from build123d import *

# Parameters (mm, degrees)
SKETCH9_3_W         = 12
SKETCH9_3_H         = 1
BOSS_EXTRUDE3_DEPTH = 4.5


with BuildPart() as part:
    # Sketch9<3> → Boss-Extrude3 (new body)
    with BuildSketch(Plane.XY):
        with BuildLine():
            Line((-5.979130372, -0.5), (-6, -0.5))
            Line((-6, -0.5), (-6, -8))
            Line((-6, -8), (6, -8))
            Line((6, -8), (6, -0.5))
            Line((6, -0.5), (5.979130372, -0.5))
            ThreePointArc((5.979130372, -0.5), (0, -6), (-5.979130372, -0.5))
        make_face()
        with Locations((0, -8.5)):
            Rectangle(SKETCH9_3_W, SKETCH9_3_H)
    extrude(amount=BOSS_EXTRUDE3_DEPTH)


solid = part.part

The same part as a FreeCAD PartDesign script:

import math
import FreeCAD as App
import Part
import Sketcher
Q = App.Units.Quantity

doc = App.newDocument("Part")
body = doc.addObject("PartDesign::Body", "Body")

# Sketch on XY plane
sketch1 = body.newObject("Sketcher::SketchObject", "Sketch")
sketch1.AttachmentSupport = (doc.getObject("XY_Plane"), [""])
sketch1.MapMode = "FlatFace"
sketch1.addGeometry(Part.LineSegment(App.Vector(-5.979, -0.5, 0), App.Vector(-6, -0.5, 0)), False)
sketch1.addGeometry(Part.LineSegment(App.Vector(-6, -0.5, 0), App.Vector(-6, -9, 0)), False)
sketch1.addGeometry(Part.LineSegment(App.Vector(-6, -9, 0), App.Vector(6, -9, 0)), False)
sketch1.addGeometry(Part.LineSegment(App.Vector(6, -9, 0), App.Vector(6, -0.5, 0)), False)
sketch1.addGeometry(Part.LineSegment(App.Vector(6, -0.5, 0), App.Vector(5.979, -0.5, 0)), False)
sketch1.addGeometry(Part.ArcOfCircle(Part.Circle(App.Vector(0, 0, 0), App.Vector(0, 0, 1), 6), math.radians(-175), math.radians(-5)), False)
sketch1.addConstraint(Sketcher.Constraint("Coincident", 0, 2, 1, 1))
sketch1.addConstraint(Sketcher.Constraint("Coincident", 1, 2, 2, 1))
sketch1.addConstraint(Sketcher.Constraint("Coincident", 2, 2, 3, 1))
sketch1.addConstraint(Sketcher.Constraint("Coincident", 3, 2, 4, 1))
sketch1.addConstraint(Sketcher.Constraint("Coincident", 4, 2, 5, 2))
sketch1.addConstraint(Sketcher.Constraint("Coincident", 5, 1, 0, 1))
sketch1.addConstraint(Sketcher.Constraint("Horizontal", 0))
sketch1.addConstraint(Sketcher.Constraint("Vertical", 1))
sketch1.addConstraint(Sketcher.Constraint("Horizontal", 2))
sketch1.addConstraint(Sketcher.Constraint("Vertical", 3))
sketch1.addConstraint(Sketcher.Constraint("Horizontal", 4))
sketch1.addConstraint(Sketcher.Constraint("Coincident", 5, 3, -1, 1))
sketch1.addConstraint(Sketcher.Constraint("Symmetric", 0, 2, 3, 2, -2))
sketch1.addConstraint(Sketcher.Constraint("Radius", 5, Q("6 mm")))
sketch1.addConstraint(Sketcher.Constraint("DistanceX", 2, 1, 2, 2, Q("12 mm")))
sketch1.addConstraint(Sketcher.Constraint("DistanceY", 1, 2, 1, 1, Q("8.5 mm")))
sketch1.addConstraint(Sketcher.Constraint("DistanceY", 1, 2, -1, 1, Q("9 mm")))
pad1 = body.newObject("PartDesign::Pad", "Pad")
pad1.Profile = sketch1
pad1.Length = 4.5

doc.recompute()
